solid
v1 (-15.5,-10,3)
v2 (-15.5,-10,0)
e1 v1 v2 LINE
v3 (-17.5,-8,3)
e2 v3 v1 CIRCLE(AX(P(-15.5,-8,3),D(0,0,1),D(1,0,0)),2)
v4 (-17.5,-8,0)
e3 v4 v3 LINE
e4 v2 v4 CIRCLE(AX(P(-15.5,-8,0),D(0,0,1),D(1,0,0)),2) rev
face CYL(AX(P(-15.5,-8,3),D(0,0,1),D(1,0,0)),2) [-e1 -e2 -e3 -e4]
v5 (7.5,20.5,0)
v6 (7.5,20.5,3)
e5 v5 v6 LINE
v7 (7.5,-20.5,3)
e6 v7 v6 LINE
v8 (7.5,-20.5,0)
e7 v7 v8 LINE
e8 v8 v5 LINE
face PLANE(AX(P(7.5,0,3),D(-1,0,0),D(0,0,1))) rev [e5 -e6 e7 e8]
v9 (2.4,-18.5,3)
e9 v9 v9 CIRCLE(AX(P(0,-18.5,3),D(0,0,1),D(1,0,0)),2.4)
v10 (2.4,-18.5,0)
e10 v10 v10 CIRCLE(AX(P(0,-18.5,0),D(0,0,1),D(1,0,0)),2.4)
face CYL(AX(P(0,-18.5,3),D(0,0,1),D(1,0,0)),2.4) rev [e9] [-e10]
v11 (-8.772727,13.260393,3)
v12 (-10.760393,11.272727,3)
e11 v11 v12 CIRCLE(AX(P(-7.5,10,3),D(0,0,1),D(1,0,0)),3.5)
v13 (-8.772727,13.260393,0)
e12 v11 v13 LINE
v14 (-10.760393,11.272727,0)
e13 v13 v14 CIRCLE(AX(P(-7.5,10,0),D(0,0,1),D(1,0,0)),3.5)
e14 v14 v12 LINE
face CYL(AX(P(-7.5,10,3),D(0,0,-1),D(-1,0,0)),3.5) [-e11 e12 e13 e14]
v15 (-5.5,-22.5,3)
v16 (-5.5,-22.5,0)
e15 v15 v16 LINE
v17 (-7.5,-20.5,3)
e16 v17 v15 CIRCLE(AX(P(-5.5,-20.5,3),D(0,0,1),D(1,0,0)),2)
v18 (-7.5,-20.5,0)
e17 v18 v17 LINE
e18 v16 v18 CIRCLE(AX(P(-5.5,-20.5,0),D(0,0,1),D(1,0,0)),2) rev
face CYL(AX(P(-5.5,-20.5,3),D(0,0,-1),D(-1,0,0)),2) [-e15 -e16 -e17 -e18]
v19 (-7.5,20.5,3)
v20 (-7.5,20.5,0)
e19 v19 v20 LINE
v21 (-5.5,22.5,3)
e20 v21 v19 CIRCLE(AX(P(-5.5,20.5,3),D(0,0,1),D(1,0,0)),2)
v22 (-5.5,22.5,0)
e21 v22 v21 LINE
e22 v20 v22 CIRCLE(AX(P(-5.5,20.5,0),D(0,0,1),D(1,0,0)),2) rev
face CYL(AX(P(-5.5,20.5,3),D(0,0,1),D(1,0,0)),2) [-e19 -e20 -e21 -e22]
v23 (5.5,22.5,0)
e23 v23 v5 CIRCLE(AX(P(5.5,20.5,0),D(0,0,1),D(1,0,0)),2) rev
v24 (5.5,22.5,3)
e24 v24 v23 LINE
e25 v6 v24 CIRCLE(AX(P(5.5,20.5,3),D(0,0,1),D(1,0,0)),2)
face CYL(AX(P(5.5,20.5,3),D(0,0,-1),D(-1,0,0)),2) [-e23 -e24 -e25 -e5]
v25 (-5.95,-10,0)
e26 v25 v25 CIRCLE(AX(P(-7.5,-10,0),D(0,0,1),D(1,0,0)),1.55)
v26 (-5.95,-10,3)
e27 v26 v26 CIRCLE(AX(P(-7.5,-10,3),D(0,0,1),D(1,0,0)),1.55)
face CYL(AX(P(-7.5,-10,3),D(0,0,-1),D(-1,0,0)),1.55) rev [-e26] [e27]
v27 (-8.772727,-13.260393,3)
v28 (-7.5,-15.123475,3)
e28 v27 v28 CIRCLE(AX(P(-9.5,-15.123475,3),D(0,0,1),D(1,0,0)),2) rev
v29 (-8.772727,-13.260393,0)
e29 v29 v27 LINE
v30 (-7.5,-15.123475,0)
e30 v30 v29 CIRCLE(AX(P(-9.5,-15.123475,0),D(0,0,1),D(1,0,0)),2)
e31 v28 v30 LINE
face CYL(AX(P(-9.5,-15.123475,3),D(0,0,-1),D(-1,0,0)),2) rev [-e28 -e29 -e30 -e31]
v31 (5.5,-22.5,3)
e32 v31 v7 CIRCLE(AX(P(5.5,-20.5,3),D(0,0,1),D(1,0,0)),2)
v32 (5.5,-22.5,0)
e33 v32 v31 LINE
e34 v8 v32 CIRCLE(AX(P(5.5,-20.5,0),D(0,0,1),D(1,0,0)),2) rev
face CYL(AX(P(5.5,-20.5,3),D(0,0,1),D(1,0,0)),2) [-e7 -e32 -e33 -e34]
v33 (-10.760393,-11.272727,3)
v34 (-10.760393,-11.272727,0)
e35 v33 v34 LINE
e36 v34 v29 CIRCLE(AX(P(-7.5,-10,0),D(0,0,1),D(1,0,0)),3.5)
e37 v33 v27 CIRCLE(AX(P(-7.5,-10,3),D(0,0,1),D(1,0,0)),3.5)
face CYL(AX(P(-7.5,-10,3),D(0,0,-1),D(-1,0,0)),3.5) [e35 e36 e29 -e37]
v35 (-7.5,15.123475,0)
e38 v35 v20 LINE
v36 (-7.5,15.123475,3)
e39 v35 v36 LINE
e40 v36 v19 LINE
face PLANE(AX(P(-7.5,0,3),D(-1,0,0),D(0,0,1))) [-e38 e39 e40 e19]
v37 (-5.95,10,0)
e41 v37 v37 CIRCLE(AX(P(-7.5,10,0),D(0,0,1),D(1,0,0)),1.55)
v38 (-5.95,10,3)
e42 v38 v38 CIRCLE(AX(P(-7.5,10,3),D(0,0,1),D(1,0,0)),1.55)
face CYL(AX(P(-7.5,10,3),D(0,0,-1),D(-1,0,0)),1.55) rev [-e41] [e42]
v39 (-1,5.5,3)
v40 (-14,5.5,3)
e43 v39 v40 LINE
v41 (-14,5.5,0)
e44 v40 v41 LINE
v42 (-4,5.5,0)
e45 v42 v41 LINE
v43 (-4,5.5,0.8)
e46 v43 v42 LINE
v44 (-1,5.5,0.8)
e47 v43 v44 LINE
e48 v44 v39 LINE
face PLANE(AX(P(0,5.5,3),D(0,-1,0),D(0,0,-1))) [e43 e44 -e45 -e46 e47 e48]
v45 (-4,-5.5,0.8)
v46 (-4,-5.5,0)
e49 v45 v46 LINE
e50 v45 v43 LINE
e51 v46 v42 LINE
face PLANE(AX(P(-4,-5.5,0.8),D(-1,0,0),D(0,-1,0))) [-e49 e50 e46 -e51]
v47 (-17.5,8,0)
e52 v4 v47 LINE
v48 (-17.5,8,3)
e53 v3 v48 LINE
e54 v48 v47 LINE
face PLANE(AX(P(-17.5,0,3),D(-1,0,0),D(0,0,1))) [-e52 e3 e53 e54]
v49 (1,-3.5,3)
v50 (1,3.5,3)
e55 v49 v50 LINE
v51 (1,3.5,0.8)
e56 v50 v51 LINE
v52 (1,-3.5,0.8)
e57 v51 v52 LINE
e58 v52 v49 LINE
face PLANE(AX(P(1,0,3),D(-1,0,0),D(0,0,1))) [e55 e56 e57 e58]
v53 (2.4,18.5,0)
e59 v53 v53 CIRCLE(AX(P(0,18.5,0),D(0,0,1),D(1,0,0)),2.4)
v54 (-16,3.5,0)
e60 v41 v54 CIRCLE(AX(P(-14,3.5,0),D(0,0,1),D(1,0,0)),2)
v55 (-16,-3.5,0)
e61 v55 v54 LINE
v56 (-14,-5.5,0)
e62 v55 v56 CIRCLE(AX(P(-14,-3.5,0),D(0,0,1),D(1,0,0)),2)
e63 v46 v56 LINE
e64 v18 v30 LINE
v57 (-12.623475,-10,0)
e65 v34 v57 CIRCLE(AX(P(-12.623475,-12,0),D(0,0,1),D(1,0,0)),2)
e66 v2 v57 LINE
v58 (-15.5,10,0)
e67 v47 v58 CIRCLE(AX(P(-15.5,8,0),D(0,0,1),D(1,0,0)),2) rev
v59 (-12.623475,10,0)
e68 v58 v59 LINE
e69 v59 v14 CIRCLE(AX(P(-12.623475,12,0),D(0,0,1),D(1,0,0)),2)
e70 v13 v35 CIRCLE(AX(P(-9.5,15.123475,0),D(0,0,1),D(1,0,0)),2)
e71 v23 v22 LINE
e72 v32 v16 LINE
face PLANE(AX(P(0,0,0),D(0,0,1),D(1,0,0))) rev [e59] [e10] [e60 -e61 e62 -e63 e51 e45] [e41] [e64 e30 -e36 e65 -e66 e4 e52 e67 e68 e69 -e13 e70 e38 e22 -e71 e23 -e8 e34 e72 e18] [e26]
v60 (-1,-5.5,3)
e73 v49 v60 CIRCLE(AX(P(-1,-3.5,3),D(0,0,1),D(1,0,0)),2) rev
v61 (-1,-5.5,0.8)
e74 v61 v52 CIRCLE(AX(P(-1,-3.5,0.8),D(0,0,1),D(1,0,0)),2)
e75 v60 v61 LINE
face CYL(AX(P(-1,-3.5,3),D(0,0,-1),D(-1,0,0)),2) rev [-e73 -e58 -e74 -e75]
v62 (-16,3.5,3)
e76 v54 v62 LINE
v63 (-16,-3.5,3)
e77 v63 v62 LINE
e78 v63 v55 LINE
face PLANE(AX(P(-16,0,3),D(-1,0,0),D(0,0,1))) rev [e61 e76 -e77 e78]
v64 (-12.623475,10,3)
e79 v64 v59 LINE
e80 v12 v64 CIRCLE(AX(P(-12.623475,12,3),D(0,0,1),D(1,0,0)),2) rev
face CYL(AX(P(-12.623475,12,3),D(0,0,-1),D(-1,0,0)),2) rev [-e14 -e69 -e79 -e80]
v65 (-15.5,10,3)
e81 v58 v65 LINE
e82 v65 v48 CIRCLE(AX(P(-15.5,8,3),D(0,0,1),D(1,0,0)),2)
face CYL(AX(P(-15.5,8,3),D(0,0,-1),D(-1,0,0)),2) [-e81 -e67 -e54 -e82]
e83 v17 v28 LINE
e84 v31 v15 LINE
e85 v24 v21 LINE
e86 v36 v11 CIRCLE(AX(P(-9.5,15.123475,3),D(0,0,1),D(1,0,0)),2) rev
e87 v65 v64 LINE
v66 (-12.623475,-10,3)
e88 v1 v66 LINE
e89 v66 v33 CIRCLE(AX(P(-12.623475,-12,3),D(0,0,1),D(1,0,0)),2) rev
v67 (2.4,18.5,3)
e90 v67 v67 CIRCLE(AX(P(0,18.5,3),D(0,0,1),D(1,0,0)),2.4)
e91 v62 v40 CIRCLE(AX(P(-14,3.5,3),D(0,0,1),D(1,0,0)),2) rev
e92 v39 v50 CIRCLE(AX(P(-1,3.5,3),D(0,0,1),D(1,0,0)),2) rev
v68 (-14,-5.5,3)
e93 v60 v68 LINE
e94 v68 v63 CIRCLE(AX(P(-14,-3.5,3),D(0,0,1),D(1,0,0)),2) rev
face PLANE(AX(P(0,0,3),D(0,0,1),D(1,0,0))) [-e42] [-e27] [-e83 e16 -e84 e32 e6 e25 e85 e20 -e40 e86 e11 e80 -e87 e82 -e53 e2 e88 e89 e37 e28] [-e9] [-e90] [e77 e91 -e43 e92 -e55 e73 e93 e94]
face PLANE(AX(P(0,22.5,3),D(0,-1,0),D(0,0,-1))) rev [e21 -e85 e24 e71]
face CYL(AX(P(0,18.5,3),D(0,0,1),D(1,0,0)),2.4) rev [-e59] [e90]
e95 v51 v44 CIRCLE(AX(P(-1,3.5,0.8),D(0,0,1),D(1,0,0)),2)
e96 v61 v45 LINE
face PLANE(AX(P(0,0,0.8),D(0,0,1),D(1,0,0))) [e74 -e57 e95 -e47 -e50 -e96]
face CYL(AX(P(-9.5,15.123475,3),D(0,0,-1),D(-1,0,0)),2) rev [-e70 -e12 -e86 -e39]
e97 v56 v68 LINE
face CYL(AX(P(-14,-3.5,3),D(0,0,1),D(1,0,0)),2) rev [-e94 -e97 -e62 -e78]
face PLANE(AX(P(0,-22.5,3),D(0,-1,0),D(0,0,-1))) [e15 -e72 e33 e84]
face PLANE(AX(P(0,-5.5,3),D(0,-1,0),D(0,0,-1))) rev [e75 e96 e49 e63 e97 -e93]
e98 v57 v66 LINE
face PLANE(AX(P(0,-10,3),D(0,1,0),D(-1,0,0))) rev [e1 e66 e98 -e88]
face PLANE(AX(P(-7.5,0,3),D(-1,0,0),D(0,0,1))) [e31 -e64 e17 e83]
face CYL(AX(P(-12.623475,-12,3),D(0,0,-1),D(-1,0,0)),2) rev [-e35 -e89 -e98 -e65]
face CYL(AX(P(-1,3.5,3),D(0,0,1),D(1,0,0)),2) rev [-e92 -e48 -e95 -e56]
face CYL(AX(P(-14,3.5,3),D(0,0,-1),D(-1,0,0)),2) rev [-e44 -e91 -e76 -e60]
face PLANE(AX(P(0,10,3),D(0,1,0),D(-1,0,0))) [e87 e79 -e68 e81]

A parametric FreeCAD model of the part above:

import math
import FreeCAD as App
import Part
import Sketcher
from FreeCAD import Vector


def edges_at(feature, points):
    """Names of the edges that pass closest to the given points."""
    edges = feature.Shape.Edges
    near = lambda p: min(range(len(edges)), key=lambda i: edges[i].distToShape(Part.Vertex(*p))[0])
    return sorted({f"Edge{near(p) + 1}" for p in points})


def add_polygon(sketch, points):
    """Adds a closed chain of lines whose ends are joined by coincident constraints."""
    first, n = sketch.GeometryCount, len(points)
    for a, b in zip(points, points[1:] + points[:1]):
        sketch.addGeometry(Part.LineSegment(App.Vector(*a, 0), App.Vector(*b, 0)), False)
    for i in range(n):
        sketch.addConstraint(Sketcher.Constraint("Coincident", first + i, 2, first + (i + 1) % n, 1))

doc = App.newDocument("Part")
body = doc.addObject("PartDesign::Body", "Body")

# Sketch on XY plane
sketch1 = doc.addObject("Sketcher::SketchObject", "Sketch")
body.addObject(sketch1)
sketch1.AttachmentSupport = (doc.XY_Plane, [""])
sketch1.MapMode = "FlatFace"
sketch1.addGeometry(Part.LineSegment(Vector(-7.5, 22.5, 0), Vector(-7.5, 13.5, 0)), False)  # 0
sketch1.addGeometry(Part.ArcOfCircle(Part.Circle(Vector(-7.5, 10, 0), Vector(0, 0, 1), 3.5), math.radians(90), math.radians(180)), False)  # 1
sketch1.addGeometry(Part.LineSegment(Vector(-11, 10, 0), Vector(-17.5, 10, 0)), False)  # 2
sketch1.addGeometry(Part.LineSegment(Vector(-17.5, 10, 0), Vector(-17.5, -10, 0)), False)  # 3
sketch1.addGeometry(Part.LineSegment(Vector(-17.5, -10, 0), Vector(-11, -10, 0)), False)  # 4
sketch1.addGeometry(Part.ArcOfCircle(Part.Circle(Vector(-7.5, -10, 0), Vector(0, 0, 1), 3.5), math.radians(-180), math.radians(-90)), False)  # 5
sketch1.addGeometry(Part.LineSegment(Vector(-7.5, -13.5, 0), Vector(-7.5, -22.5, 0)), False)  # 6
sketch1.addGeometry(Part.LineSegment(Vector(-7.5, -22.5, 0), Vector(7.5, -22.5, 0)), False)  # 7
sketch1.addGeometry(Part.LineSegment(Vector(7.5, -22.5, 0), Vector(7.5, 22.5, 0)), False)  # 8
sketch1.addGeometry(Part.LineSegment(Vector(7.5, 22.5, 0), Vector(-7.5, 22.5, 0)), False)  # 9
sketch1.addGeometry(Part.ArcOfCircle(Part.Circle(Vector(-7.5, 10, 0), Vector(0, 0, 1), 1.5), math.radians(90), math.radians(180)), False)  # 10
sketch1.addGeometry(Part.ArcOfCircle(Part.Circle(Vector(-7.5, 10, 0), Vector(0, 0, 1), 1.6), math.radians(-90), math.radians(90)), False)  # 11
sketch1.addGeometry(Part.ArcOfCircle(Part.Circle(Vector(-7.5, 10, 0), Vector(0, 0, 1), 1.5), math.radians(180), math.radians(270)), False)  # 12
sketch1.addGeometry(Part.ArcOfCircle(Part.Circle(Vector(-7.5, -10, 0), Vector(0, 0, 1), 1.5), math.radians(90), math.radians(180)), False)  # 13
sketch1.addGeometry(Part.ArcOfCircle(Part.Circle(Vector(-7.5, -10, 0), Vector(0, 0, 1), 1.6), math.radians(-90), math.radians(90)), False)  # 14
sketch1.addGeometry(Part.ArcOfCircle(Part.Circle(Vector(-7.5, -10, 0), Vector(0, 0, 1), 1.5), math.radians(180), math.radians(270)), False)  # 15
add_polygon(sketch1, [(-16, -5.5), (-16, 5.5), (1, 5.5), (1, -5.5)])  # lines 16-19
sketch1.addConstraint([
    Sketcher.Constraint("Coincident", 0, 2, 1, 1),
    Sketcher.Constraint("Coincident", 1, 2, 2, 1),
    Sketcher.Constraint("Coincident", 2, 2, 3, 1),
    Sketcher.Constraint("Coincident", 3, 2, 4, 1),
    Sketcher.Constraint("Coincident", 4, 2, 5, 1),
    Sketcher.Constraint("Coincident", 5, 2, 6, 1),
    Sketcher.Constraint("Coincident", 6, 2, 7, 1),
    Sketcher.Constraint("Coincident", 7, 2, 8, 1),
    Sketcher.Constraint("Coincident", 8, 2, 9, 1),
    Sketcher.Constraint("Coincident", 9, 2, 0, 1),
    Sketcher.Constraint("Tangent", 10, 1, 11, 2),
    Sketcher.Constraint("Tangent", 11, 1, 12, 2),
    Sketcher.Constraint("Tangent", 12, 1, 10, 2),
    Sketcher.Constraint("Tangent", 13, 1, 14, 2),
    Sketcher.Constraint("Tangent", 14, 1, 15, 2),
    Sketcher.Constraint("Tangent", 15, 1, 13, 2),
    Sketcher.Constraint("Vertical", 0),
    Sketcher.Constraint("Horizontal", 2),
    Sketcher.Constraint("Vertical", 3),
    Sketcher.Constraint("Horizontal", 4),
    Sketcher.Constraint("Vertical", 6),
    Sketcher.Constraint("Horizontal", 7),
    Sketcher.Constraint("Vertical", 8),
    Sketcher.Constraint("Horizontal", 9),
    Sketcher.Constraint("Vertical", 16),
    Sketcher.Constraint("Horizontal", 17),
    Sketcher.Constraint("Vertical", 18),
    Sketcher.Constraint("Horizontal", 19),
    Sketcher.Constraint("Coincident", 10, 3, 1, 3),
    Sketcher.Constraint("Coincident", 13, 3, 5, 3),
    Sketcher.Constraint("Equal", 1, 5),
    Sketcher.Constraint("Equal", 12, 13),
    Sketcher.Constraint("Symmetric", 6, 2, 8, 2, -1, 1),
    Sketcher.Constraint("Symmetric", 1, 3, 5, 3, -1),
    Sketcher.Constraint("Horizontal", 12, 3, 1, 2),
    Sketcher.Constraint("Horizontal", 15, 3, 3, 2),
    Sketcher.Constraint("Horizontal", 2, 2, 12, 1),
    Sketcher.Constraint("Horizontal", 4, 2, 15, 1),
    Sketcher.Constraint("Vertical", 15, 3, 0, 2),
    Sketcher.Constraint("Vertical", 0, 2, 5, 2),
    Sketcher.Constraint("Vertical", 9, 2, 10, 1),
    Sketcher.Constraint("Vertical", 10, 1, 11, 1),
    Sketcher.Constraint("Vertical", 11, 1, 13, 1),
    Sketcher.Constraint("Vertical", 13, 1, 14, 1),
    Sketcher.Constraint("Radius", 1, 3.5),
    Sketcher.Constraint("DistanceX", 7, 1, 7, 2, 15.0),
    Sketcher.Constraint("DistanceX", 17, 1, 17, 2, 17.0),
    Sketcher.Constraint("DistanceY", 0, 2, 0, 1, 9.0),
    Sketcher.Constraint("DistanceY", 3, 2, 3, 1, 20.0),
    Sketcher.Constraint("DistanceY", 16, 1, 16, 2, 11.0),
    Sketcher.Constraint("Radius", 10, 1.55),
    Sketcher.Constraint("DistanceX", 2, 2, 2, 1, 6.5),
    Sketcher.Constraint("DistanceX", 16, 2, -1, 1, 16.0),
    Sketcher.Constraint("DistanceY", -1, 1, 16, 2, 5.5),
])
pad1 = doc.addObject("PartDesign::Pad", "Pad")
body.addObject(pad1)
pad1.Profile = sketch1
pad1.Length = 3

# Sketch on XY plane
sketch2 = doc.addObject("Sketcher::SketchObject", "Sketch001")
body.addObject(sketch2)
sketch2.AttachmentSupport = (doc.XY_Plane, [""])
sketch2.MapMode = "FlatFace"
sketch2.AttachmentOffset = App.Placement(Vector(0, 0, 3), App.Rotation())
sketch2.addGeometry([
    Part.Circle(Vector(0, -18.5, 0), Vector(0, 0, 1), 2.4),
    Part.Circle(Vector(0, 18.5, 0), Vector(0, 0, 1), 2.4),
], False)
sketch2.addConstraint([
    Sketcher.Constraint("Equal", 0, 1),
    Sketcher.Constraint("Symmetric", 0, 3, 1, 3, -1, 1),
    Sketcher.Constraint("PointOnObject", 0, 3, -2),
    Sketcher.Constraint("Diameter", 0, 4.8),
    Sketcher.Constraint("DistanceY", 0, 3, 1, 3, 37.0),
])
doc.recompute()
hole = doc.addObject("PartDesign::Hole", "Hole")
body.addObject(hole)
hole.Profile = sketch2
hole.ThreadType = "None"
hole.Diameter = 4.8
hole.DepthType = "ThroughAll"

# Sketch on XY plane
sketch3 = doc.addObject("Sketcher::SketchObject", "Sketch002")
body.addObject(sketch3)
sketch3.AttachmentSupport = (doc.XY_Plane, [""])
sketch3.MapMode = "FlatFace"
add_polygon(sketch3, [(-4, -6), (-4, 6), (1, 6), (1, -6)])  # lines 0-3
sketch3.addConstraint([
    Sketcher.Constraint("Vertical", 0),
    Sketcher.Constraint("Horizontal", 1),
    Sketcher.Constraint("Vertical", 2),
    Sketcher.Constraint("Horizontal", 3),
    Sketcher.Constraint("DistanceX", 1, 1, 1, 2, 5.0),
    Sketcher.Constraint("DistanceY", 0, 1, 0, 2, 11.0),
    Sketcher.Constraint("DistanceX", 0, 2, -1, 1, 4.0),
    Sketcher.Constraint("DistanceY", -1, 1, 0, 2, 5.5),
])
pad2 = doc.addObject("PartDesign::Pad", "Pad001")
body.addObject(pad2)
pad2.Profile = sketch3
pad2.Length = 0.8
doc.recompute()

fillet = doc.addObject("PartDesign::Fillet", "Fillet")
body.addObject(fillet)
fillet.Base = (pad2, edges_at(pad2, [
    (-16, -5.5, 1.5),
    (1, -5.5, 1.9),
    (1, 5.5, 1.9),
    (-16, 5.5, 1.5),
    (-7.5, 13.5, 1.5),
    (-7.5, 22.5, 1.5),
    (7.5, 22.5, 1.5),
    (7.5, -22.5, 1.5),
    (-7.5, -22.5, 1.5),
    (-7.5, -13.5, 1.5),
    (-11, -10, 1.5),
    (-17.5, -10, 1.5),
    (-17.5, 10, 1.5),
    (-11, 10, 1.5),
]))
fillet.Radius = 2

doc.recompute()
